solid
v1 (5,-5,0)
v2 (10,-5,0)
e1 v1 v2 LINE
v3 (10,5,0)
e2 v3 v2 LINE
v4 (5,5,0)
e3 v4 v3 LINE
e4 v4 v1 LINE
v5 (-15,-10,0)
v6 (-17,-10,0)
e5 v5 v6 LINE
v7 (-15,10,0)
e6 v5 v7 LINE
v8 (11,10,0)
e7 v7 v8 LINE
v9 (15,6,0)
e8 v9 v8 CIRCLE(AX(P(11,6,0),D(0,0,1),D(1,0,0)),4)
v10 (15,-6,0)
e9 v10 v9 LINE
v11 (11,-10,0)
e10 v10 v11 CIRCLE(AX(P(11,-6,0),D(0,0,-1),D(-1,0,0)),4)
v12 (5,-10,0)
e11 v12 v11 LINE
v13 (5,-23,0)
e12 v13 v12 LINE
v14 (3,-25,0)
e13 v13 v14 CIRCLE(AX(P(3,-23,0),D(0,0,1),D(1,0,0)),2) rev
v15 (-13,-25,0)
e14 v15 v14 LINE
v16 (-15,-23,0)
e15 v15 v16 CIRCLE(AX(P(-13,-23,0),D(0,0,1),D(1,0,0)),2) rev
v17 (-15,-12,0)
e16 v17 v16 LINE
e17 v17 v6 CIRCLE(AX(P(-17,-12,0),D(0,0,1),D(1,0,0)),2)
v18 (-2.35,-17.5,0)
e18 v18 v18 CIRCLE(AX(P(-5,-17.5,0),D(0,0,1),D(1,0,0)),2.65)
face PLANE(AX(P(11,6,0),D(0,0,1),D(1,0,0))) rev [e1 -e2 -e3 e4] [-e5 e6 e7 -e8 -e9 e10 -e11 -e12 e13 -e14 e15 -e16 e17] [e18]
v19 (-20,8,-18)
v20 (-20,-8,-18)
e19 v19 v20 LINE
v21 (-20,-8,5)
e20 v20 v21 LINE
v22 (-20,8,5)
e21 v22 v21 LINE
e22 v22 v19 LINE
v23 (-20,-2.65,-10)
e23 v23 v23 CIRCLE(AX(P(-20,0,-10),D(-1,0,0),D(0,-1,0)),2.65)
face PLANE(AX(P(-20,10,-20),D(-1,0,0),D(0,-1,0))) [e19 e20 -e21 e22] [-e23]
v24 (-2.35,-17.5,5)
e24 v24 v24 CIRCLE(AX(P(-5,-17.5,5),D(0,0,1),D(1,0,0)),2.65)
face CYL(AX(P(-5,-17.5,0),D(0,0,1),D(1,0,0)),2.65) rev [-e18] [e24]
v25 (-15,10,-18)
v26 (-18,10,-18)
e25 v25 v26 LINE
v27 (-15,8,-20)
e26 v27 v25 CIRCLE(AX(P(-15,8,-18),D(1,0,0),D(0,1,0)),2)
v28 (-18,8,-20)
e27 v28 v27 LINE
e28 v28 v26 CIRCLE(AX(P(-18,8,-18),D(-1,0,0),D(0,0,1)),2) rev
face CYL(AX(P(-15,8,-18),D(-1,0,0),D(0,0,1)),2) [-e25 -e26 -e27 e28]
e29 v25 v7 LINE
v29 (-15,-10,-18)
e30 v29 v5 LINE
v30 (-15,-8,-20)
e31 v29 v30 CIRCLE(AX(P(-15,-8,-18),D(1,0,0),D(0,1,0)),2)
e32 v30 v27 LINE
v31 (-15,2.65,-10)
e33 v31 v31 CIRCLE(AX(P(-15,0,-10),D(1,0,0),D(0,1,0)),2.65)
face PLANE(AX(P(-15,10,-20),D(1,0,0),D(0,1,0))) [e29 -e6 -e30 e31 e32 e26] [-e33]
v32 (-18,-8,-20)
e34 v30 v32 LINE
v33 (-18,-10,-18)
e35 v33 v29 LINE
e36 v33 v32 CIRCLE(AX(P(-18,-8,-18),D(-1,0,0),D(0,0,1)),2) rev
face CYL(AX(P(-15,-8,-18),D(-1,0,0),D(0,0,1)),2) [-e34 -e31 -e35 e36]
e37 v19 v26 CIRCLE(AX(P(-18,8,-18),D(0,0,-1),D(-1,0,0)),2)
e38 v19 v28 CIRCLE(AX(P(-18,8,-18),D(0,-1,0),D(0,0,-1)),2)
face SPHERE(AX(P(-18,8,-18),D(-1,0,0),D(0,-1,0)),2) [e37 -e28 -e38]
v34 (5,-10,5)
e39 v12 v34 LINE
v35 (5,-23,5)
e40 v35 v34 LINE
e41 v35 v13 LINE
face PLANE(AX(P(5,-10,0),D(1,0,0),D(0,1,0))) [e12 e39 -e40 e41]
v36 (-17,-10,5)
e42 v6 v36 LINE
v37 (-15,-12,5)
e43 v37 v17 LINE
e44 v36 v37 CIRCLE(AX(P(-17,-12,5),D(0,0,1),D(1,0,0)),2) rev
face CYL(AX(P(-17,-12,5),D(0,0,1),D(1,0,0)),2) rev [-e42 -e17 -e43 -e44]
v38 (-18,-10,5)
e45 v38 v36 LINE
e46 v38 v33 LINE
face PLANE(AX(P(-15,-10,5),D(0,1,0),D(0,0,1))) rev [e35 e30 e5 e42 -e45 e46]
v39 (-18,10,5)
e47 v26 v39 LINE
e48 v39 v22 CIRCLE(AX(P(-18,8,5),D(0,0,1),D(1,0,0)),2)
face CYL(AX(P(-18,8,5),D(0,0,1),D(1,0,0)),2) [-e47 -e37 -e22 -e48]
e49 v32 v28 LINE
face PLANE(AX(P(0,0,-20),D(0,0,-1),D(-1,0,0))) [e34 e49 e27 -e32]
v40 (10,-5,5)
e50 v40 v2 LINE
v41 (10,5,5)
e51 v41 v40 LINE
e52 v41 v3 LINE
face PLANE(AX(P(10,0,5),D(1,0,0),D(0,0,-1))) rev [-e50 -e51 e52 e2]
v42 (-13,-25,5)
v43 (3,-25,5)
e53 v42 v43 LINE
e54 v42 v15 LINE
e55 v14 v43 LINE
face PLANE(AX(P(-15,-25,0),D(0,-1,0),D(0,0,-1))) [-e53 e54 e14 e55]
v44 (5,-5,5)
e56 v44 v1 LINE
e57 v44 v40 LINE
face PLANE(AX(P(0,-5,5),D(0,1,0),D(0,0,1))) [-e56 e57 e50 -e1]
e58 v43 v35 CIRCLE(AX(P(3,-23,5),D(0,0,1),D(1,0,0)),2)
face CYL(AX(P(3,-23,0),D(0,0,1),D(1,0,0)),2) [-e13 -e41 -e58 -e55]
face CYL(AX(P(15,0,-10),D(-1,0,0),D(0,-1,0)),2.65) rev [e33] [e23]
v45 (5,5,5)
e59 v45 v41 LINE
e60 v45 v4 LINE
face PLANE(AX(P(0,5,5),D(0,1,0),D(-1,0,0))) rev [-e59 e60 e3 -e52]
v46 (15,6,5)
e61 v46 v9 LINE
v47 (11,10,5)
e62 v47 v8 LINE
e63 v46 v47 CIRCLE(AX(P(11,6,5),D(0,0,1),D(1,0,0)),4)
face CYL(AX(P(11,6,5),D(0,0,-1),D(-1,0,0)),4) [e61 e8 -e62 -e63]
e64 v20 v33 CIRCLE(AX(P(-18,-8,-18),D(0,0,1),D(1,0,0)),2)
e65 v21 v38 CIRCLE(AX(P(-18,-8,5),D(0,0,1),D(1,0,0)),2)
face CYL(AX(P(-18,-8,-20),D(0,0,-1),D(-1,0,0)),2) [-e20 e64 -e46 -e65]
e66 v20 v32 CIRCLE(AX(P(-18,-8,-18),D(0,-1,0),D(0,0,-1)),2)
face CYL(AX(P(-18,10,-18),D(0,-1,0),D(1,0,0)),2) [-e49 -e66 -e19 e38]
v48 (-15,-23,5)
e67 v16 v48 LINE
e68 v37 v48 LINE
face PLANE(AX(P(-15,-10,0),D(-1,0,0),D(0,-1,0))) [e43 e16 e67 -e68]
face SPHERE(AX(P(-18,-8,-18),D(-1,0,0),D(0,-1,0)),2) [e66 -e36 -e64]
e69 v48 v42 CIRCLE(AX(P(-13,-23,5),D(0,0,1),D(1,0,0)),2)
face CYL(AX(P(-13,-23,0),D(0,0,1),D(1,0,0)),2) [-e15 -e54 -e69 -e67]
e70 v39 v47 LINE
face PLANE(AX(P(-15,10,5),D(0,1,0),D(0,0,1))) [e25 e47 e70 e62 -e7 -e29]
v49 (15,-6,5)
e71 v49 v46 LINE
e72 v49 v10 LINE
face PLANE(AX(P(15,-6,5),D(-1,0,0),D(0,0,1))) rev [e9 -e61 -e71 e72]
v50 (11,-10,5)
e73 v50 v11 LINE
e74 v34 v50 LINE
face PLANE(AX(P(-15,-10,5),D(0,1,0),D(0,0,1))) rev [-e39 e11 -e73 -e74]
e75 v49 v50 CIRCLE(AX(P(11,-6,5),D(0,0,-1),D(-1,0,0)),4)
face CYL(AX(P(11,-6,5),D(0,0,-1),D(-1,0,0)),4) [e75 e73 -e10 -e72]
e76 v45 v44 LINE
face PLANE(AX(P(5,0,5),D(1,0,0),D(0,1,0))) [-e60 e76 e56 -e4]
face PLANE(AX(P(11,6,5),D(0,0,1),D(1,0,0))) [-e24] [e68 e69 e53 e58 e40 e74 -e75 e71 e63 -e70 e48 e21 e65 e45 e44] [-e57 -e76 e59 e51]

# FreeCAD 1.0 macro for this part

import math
import FreeCAD as App
import Part
import Sketcher
Q = App.Units.Quantity


def edges_at(feature, points):
    """Names of the edges that pass closest to the given points."""
    edges = feature.Shape.Edges
    near = lambda p: min(range(len(edges)), key=lambda i: edges[i].distToShape(Part.Vertex(*p))[0])
    return sorted({f"Edge{near(p) + 1}" for p in points})

doc = App.newDocument("Part")
body = doc.addObject("PartDesign::Body", "Body")

# Sketch on XY plane
sketch1 = body.newObject("Sketcher::SketchObject", "Sketch")
sketch1.AttachmentSupport = (doc.getObject("XY_Plane"), [""])
sketch1.MapMode = "FlatFace"
sketch1.addGeometry([
    Part.LineSegment(App.Vector(-15, -10, 0), App.Vector(11, -10, 0)),  # 0
    Part.ArcOfCircle(Part.Circle(App.Vector(11, -6, 0), App.Vector(0, 0, 1), 4), math.radians(-90), math.radians(0)),  # 1
    Part.LineSegment(App.Vector(15, -6, 0), App.Vector(15, 6, 0)),  # 2
    Part.ArcOfCircle(Part.Circle(App.Vector(11, 6, 0), App.Vector(0, 0, 1), 4), math.radians(0), math.radians(90)),  # 3
    Part.LineSegment(App.Vector(11, 10, 0), App.Vector(-15, 10, 0)),  # 4
    Part.LineSegment(App.Vector(-15, 10, 0), App.Vector(-15, -10, 0)),  # 5
    Part.LineSegment(App.Vector(10, -5, 0), App.Vector(5, -5, 0)),  # 6
    Part.LineSegment(App.Vector(5, -5, 0), App.Vector(5, 5, 0)),  # 7
    Part.LineSegment(App.Vector(5, 5, 0), App.Vector(10, 5, 0)),  # 8
    Part.LineSegment(App.Vector(10, 5, 0), App.Vector(10, -5, 0)),  # 9
], False)
sketch1.addConstraint([
    Sketcher.Constraint("Tangent", 0, 2, 1, 1),
    Sketcher.Constraint("Tangent", 1, 2, 2, 1),
    Sketcher.Constraint("Tangent", 2, 2, 3, 1),
    Sketcher.Constraint("Tangent", 3, 2, 4, 1),
    Sketcher.Constraint("Coincident", 4, 2, 5, 1),
    Sketcher.Constraint("Coincident", 5, 2, 0, 1),
    Sketcher.Constraint("Coincident", 6, 2, 7, 1),
    Sketcher.Constraint("Coincident", 7, 2, 8, 1),
    Sketcher.Constraint("Coincident", 8, 2, 9, 1),
    Sketcher.Constraint("Coincident", 9, 2, 6, 1),
    Sketcher.Constraint("Horizontal", 0),
    Sketcher.Constraint("Vertical", 2),
    Sketcher.Constraint("Horizontal", 4),
    Sketcher.Constraint("Vertical", 5),
    Sketcher.Constraint("Horizontal", 6),
    Sketcher.Constraint("Vertical", 7),
    Sketcher.Constraint("Horizontal", 8),
    Sketcher.Constraint("Vertical", 9),
    Sketcher.Constraint("Equal", 1, 3),
    Sketcher.Constraint("Radius", 1, Q("4 mm")),
    Sketcher.Constraint("DistanceX", 0, 1, 0, 2, Q("26 mm")),
    Sketcher.Constraint("DistanceX", 6, 2, 6, 1, Q("5 mm")),
    Sketcher.Constraint("DistanceY", 2, 1, 2, 2, Q("12 mm")),
    Sketcher.Constraint("DistanceY", 7, 1, 7, 2, Q("10 mm")),
    Sketcher.Constraint("DistanceX", -1, 1, 1, 3, Q("11 mm")),
    Sketcher.Constraint("DistanceY", 1, 3, -1, 1, Q("6 mm")),
    Sketcher.Constraint("DistanceX", -1, 1, 6, 2, Q("5 mm")),
    Sketcher.Constraint("DistanceY", 6, 2, -1, 1, Q("5 mm")),
])
pad1 = body.newObject("PartDesign::Pad", "Pad")
pad1.Profile = sketch1
pad1.Length = 5

# Sketch on XY plane
sketch2 = body.newObject("Sketcher::SketchObject", "Sketch001")
sketch2.AttachmentSupport = (doc.getObject("XY_Plane"), [""])
sketch2.MapMode = "FlatFace"
sketch2.AttachmentOffset = App.Placement(App.Vector(0, 0, 5), App.Rotation())
sketch2.addGeometry([
    Part.LineSegment(App.Vector(-20, 10, 0), App.Vector(-20, -10, 0)),
    Part.LineSegment(App.Vector(-20, -10, 0), App.Vector(-15, -10, 0)),
    Part.LineSegment(App.Vector(-15, -10, 0), App.Vector(-15, 10, 0)),
    Part.LineSegment(App.Vector(-15, 10, 0), App.Vector(-20, 10, 0)),
], False)
sketch2.addConstraint([
    Sketcher.Constraint("Coincident", 0, 2, 1, 1),
    Sketcher.Constraint("Coincident", 1, 2, 2, 1),
    Sketcher.Constraint("Coincident", 2, 2, 3, 1),
    Sketcher.Constraint("Coincident", 3, 2, 0, 1),
    Sketcher.Constraint("Vertical", 0),
    Sketcher.Constraint("Horizontal", 1),
    Sketcher.Constraint("Vertical", 2),
    Sketcher.Constraint("Horizontal", 3),
    Sketcher.Constraint("DistanceX", 1, 1, 1, 2, Q("5 mm")),
    Sketcher.Constraint("DistanceY", 0, 2, 0, 1, Q("20 mm")),
    Sketcher.Constraint("DistanceX", 0, 2, -1, 1, Q("20 mm")),
    Sketcher.Constraint("DistanceY", 0, 2, -1, 1, Q("10 mm")),
])
pad2 = body.newObject("PartDesign::Pad", "Pad001")
pad2.Profile = sketch2
pad2.Length = 25
pad2.Reversed = True

# Sketch on YZ plane
sketch3 = body.newObject("Sketcher::SketchObject", "Sketch002")
sketch3.AttachmentSupport = (doc.getObject("YZ_Plane"), [""])
sketch3.MapMode = "FlatFace"
sketch3.AttachmentOffset = App.Placement(App.Vector(0, 0, -20), App.Rotation())
sketch3.addGeometry(Part.Circle(App.Vector(0, -10, 0), App.Vector(0, 0, 1), 2.65), False)
sketch3.addConstraint([
    Sketcher.Constraint("PointOnObject", 0, 3, -2),
    Sketcher.Constraint("Diameter", 0, Q("5.3 mm")),
    Sketcher.Constraint("DistanceY", 0, 3, -1, 1, Q("10 mm")),
])
pocket1 = body.newObject("PartDesign::Pocket", "Pocket")
pocket1.Profile = sketch3
pocket1.Type = "ThroughAll"
pocket1.Reversed = True

# Sketch on XY plane
sketch4 = body.newObject("Sketcher::SketchObject", "Sketch003")
sketch4.AttachmentSupport = (doc.getObject("XY_Plane"), [""])
sketch4.MapMode = "FlatFace"
sketch4.AttachmentOffset = App.Placement(App.Vector(0, 0, 5), App.Rotation())
sketch4.addGeometry([
    Part.LineSegment(App.Vector(-15, -10, 0), App.Vector(-15, -25, 0)),  # 0
    Part.LineSegment(App.Vector(-15, -25, 0), App.Vector(5, -25, 0)),  # 1
    Part.LineSegment(App.Vector(5, -25, 0), App.Vector(5, -10, 0)),  # 2
    Part.LineSegment(App.Vector(5, -10, 0), App.Vector(-15, -10, 0)),  # 3
    Part.Circle(App.Vector(-5, -17.5, 0), App.Vector(0, 0, 1), 2.65),  # 4
], False)
sketch4.addConstraint([
    Sketcher.Constraint("Coincident", 0, 2, 1, 1),
    Sketcher.Constraint("Coincident", 1, 2, 2, 1),
    Sketcher.Constraint("Coincident", 2, 2, 3, 1),
    Sketcher.Constraint("Coincident", 3, 2, 0, 1),
    Sketcher.Constraint("Vertical", 0),
    Sketcher.Constraint("Horizontal", 1),
    Sketcher.Constraint("Vertical", 2),
    Sketcher.Constraint("Horizontal", 3),
    Sketcher.Constraint("Diameter", 4, Q("5.3 mm")),
    Sketcher.Constraint("DistanceX", 1, 1, 1, 2, Q("20 mm")),
    Sketcher.Constraint("DistanceY", 0, 2, 0, 1, Q("15 mm")),
    Sketcher.Constraint("DistanceX", 4, 3, -1, 1, Q("5 mm")),
    Sketcher.Constraint("DistanceX", 0, 2, -1, 1, Q("15 mm")),
    Sketcher.Constraint("DistanceY", 0, 2, -1, 1, Q("25 mm")),
    Sketcher.Constraint("DistanceY", 4, 3, -1, 1, Q("17.5 mm")),
])
pad3 = body.newObject("PartDesign::Pad", "Pad002")
pad3.Profile = sketch4
pad3.Length = 5
pad3.Reversed = True
doc.recompute()

fillet = body.newObject("PartDesign::Fillet", "Fillet")
fillet.Base = (pad3, edges_at(pad3, [(-15, -10, 2.5)]))
fillet.Radius = 2
doc.recompute()

fillet2 = body.newObject("PartDesign::Fillet", "Fillet001")
fillet2.Base = (fillet, edges_at(fillet, [(5, -25, 2.5), (-15, -25, 2.5)]))
fillet2.Radius = 2
doc.recompute()

fillet3 = body.newObject("PartDesign::Fillet", "Fillet002")
fillet3.Base = (fillet2, edges_at(fillet2, [(-17.5, -10, -20), (-17.5, 10, -20)]))
fillet3.Radius = 2
doc.recompute()

fillet4 = body.newObject("PartDesign::Fillet", "Fillet003")
fillet4.Base = (fillet3, edges_at(fillet3, [
    (-20, 10, -6.5),
    (-20, 0, -20),
    (-20, -10, -6.5),
    (-20, -9.414, -19.414),
    (-20, 9.414, -19.414),
]))
fillet4.Radius = 2

doc.recompute()
